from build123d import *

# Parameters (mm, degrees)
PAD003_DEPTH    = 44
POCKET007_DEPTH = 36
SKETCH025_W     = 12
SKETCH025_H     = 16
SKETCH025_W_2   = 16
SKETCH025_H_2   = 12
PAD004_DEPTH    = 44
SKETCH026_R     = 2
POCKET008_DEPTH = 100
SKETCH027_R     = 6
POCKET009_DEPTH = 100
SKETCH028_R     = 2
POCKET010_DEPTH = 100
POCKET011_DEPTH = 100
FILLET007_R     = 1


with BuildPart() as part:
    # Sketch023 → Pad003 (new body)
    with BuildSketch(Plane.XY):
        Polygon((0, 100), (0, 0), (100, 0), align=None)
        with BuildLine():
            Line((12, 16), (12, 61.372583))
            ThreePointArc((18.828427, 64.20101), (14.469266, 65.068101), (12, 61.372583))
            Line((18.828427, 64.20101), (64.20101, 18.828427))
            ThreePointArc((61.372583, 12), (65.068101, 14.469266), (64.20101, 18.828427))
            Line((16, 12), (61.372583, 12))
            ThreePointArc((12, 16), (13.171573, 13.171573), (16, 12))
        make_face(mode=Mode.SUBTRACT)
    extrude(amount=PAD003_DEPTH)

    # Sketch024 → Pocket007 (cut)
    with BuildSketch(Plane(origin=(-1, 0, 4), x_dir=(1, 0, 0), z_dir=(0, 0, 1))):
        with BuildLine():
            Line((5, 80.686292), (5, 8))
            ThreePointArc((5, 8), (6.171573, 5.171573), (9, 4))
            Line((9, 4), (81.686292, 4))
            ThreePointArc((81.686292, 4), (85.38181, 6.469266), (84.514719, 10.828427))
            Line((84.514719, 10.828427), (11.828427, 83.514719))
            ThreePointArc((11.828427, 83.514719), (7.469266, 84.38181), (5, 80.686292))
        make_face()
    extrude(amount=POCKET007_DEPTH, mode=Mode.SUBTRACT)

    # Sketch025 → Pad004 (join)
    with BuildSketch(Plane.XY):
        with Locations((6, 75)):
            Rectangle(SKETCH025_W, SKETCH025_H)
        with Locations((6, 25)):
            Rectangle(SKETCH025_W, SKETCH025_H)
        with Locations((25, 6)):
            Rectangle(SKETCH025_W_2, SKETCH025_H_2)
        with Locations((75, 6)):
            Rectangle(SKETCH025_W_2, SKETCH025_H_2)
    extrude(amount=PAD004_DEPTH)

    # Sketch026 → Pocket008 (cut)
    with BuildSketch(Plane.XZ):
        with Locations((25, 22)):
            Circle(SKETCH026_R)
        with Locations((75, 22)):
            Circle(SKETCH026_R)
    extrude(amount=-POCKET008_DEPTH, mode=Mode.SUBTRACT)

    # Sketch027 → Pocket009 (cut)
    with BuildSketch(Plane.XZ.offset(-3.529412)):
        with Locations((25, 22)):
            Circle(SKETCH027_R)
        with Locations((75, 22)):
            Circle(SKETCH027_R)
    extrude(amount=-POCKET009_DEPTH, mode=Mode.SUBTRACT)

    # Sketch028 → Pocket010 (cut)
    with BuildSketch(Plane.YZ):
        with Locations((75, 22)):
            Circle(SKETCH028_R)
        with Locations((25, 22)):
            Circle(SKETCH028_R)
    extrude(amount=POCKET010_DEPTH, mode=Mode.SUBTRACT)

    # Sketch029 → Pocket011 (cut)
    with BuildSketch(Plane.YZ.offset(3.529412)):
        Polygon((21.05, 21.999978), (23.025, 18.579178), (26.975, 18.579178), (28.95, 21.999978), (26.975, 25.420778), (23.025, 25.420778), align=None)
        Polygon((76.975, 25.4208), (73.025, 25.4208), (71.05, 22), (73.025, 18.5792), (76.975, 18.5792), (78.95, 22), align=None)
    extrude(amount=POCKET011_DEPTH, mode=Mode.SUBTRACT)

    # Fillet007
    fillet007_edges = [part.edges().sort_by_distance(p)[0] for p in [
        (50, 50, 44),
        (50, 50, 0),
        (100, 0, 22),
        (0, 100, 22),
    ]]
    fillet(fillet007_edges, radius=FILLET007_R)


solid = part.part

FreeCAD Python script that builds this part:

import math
import FreeCAD as App
import Part
import Sketcher

V = App.Vector
Q = App.Units.Quantity


def edges_at(feature, points):
    """Names of the edges that pass closest to the given points."""
    edges = feature.Shape.Edges
    near = lambda p: min(range(len(edges)), key=lambda i: edges[i].distToShape(Part.Vertex(*p))[0])
    return sorted({f"Edge{near(p) + 1}" for p in points})


def add_polygon(sketch, points):
    """Adds a closed chain of lines whose ends are joined by coincident constraints."""
    first, n = sketch.GeometryCount, len(points)
    for a, b in zip(points, points[1:] + points[:1]):
        sketch.addGeometry(Part.LineSegment(App.Vector(*a, 0), App.Vector(*b, 0)), False)
    for i in range(n):
        sketch.addConstraint(Sketcher.Constraint("Coincident", first + i, 2, first + (i + 1) % n, 1))

doc = App.newDocument("Part")
body = doc.addObject("PartDesign::Body", "Body")

sketch1 = body.newObject("Sketcher::SketchObject", "Sketch")
sketch1.AttachmentSupport = (doc.getObject("XY_Plane"), [""])
sketch1.MapMode = "FlatFace"
add_polygon(sketch1, [(0, 100), (0, 0), (100, 0)])
sketch1.addGeometry(Part.ArcOfCircle(Part.Circle(V(16, 16, 0), V(0, 0, 1), 4), math.radians(-180), math.radians(-90)), False)
sketch1.addGeometry(Part.LineSegment(V(12, 16, 0), V(12, 61.4, 0)), False)
sketch1.addGeometry(Part.ArcOfCircle(Part.Circle(V(16, 61.4, 0), V(0, 0, 1), 4), math.radians(45), math.radians(180)), False)
sketch1.addGeometry(Part.LineSegment(V(18.8, 64.2, 0), V(64.2, 18.8, 0)), False)
sketch1.addGeometry(Part.ArcOfCircle(Part.Circle(V(61.4, 16, 0), V(0, 0, 1), 4), math.radians(-90), math.radians(45)), False)
sketch1.addGeometry(Part.LineSegment(V(61.4, 12, 0), V(16, 12, 0)), False)
sketch1.addConstraint([
    Sketcher.Constraint("Tangent", 3, 1, 4, 1),
    Sketcher.Constraint("Tangent", 4, 2, 5, 2),
    Sketcher.Constraint("Tangent", 5, 1, 6, 1),
    Sketcher.Constraint("Tangent", 6, 2, 7, 2),
    Sketcher.Constraint("Tangent", 7, 1, 8, 1),
    Sketcher.Constraint("Tangent", 8, 2, 3, 2),
    Sketcher.Constraint("Vertical", 0),
    Sketcher.Constraint("Horizontal", 1),
    Sketcher.Constraint("Vertical", 4),
    Sketcher.Constraint("Horizontal", 8),
    Sketcher.Constraint("Coincident", 0, 2, -1, 1),
    Sketcher.Constraint("Equal", 3, 5),
    Sketcher.Constraint("Equal", 5, 7),
    Sketcher.Constraint("Parallel", 2, 6),
    Sketcher.Constraint("Equal", 1, 0),
    Sketcher.Constraint("Radius", 3, Q("4 mm")),
    Sketcher.Constraint("DistanceX", 1, 1, 1, 2, Q("100 mm")),
    Sketcher.Constraint("DistanceX", -1, 1, 3, 3, Q("16 mm")),
    Sketcher.Constraint("DistanceY", -1, 1, 3, 3, Q("16 mm")),
    Sketcher.Constraint("DistanceX", 8, 2, 8, 1, Q("45.372583 mm")),
])
pad1 = body.newObject("PartDesign::Pad", "Pad")
pad1.Profile = sketch1
pad1.Length = 44

sketch2 = body.newObject("Sketcher::SketchObject", "Sketch001")
sketch2.AttachmentSupport = (doc.getObject("XY_Plane"), [""])
sketch2.MapMode = "FlatFace"
sketch2.AttachmentOffset = App.Placement(V(0, 0, 4), App.Rotation())
sketch2.addGeometry([
    Part.LineSegment(V(4, 80.7, 0), V(4, 8, 0)),
    Part.ArcOfCircle(Part.Circle(V(8, 8, 0), V(0, 0, 1), 4), math.radians(-180), math.radians(-90)),
    Part.LineSegment(V(8, 4, 0), V(80.7, 4, 0)),
    Part.ArcOfCircle(Part.Circle(V(80.7, 8, 0), V(0, 0, 1), 4), math.radians(-90), math.radians(45)),
    Part.LineSegment(V(83.5, 10.8, 0), V(10.8, 83.5, 0)),
    Part.ArcOfCircle(Part.Circle(V(8, 80.7, 0), V(0, 0, 1), 4), math.radians(45), math.radians(180)),
], False)
sketch2.addConstraint([
    Sketcher.Constraint("Tangent", 0, 2, 1, 1),
    Sketcher.Constraint("Tangent", 1, 2, 2, 1),
    Sketcher.Constraint("Tangent", 2, 2, 3, 1),
    Sketcher.Constraint("Tangent", 3, 2, 4, 1),
    Sketcher.Constraint("Tangent", 4, 2, 5, 1),
    Sketcher.Constraint("Tangent", 5, 2, 0, 1),
    Sketcher.Constraint("Vertical", 0),
    Sketcher.Constraint("Horizontal", 2),
    Sketcher.Constraint("Equal", 1, 3),
    Sketcher.Constraint("Equal", 3, 5),
    Sketcher.Constraint("Equal", 2, 0),
    Sketcher.Constraint("Radius", 1, Q("4 mm")),
    Sketcher.Constraint("DistanceX", -1, 1, 1, 3, Q("8 mm")),
    Sketcher.Constraint("DistanceY", -1, 1, 1, 3, Q("8 mm")),
    Sketcher.Constraint("DistanceX", 2, 1, 2, 2, Q("72.686292 mm")),
])
pocket1 = body.newObject("PartDesign::Pocket", "Pocket")
pocket1.Profile = sketch2
pocket1.Length = 36
pocket1.Reversed = True

sketch3 = body.newObject("Sketcher::SketchObject", "Sketch002")
sketch3.AttachmentSupport = (doc.getObject("XY_Plane"), [""])
sketch3.MapMode = "FlatFace"
add_polygon(sketch3, [(0, 83), (0, 67), (12, 67), (12, 83)])
add_polygon(sketch3, [(0, 33), (0, 17), (12, 17), (12, 33)])
add_polygon(sketch3, [(17, 12), (17, 0), (33, 0), (33, 12)])
add_polygon(sketch3, [(67, 12), (67, 0), (83, 0), (83, 12)])
sketch3.addConstraint([
    Sketcher.Constraint("Vertical", 0),
    Sketcher.Constraint("Horizontal", 1),
    Sketcher.Constraint("Vertical", 2),
    Sketcher.Constraint("Horizontal", 3),
    Sketcher.Constraint("Vertical", 4),
    Sketcher.Constraint("Horizontal", 5),
    Sketcher.Constraint("Vertical", 6),
    Sketcher.Constraint("Horizontal", 7),
    Sketcher.Constraint("Vertical", 8),
    Sketcher.Constraint("Horizontal", 9),
    Sketcher.Constraint("Vertical", 10),
    Sketcher.Constraint("Horizontal", 11),
    Sketcher.Constraint("Vertical", 12),
    Sketcher.Constraint("Horizontal", 13),
    Sketcher.Constraint("Vertical", 14),
    Sketcher.Constraint("Horizontal", 15),
    Sketcher.Constraint("PointOnObject", 0, 2, -2),
    Sketcher.Constraint("PointOnObject", 4, 2, -2),
    Sketcher.Constraint("PointOnObject", 8, 2, -1),
    Sketcher.Constraint("PointOnObject", 12, 2, -1),
    Sketcher.Constraint("Horizontal", 11, 2, 14, 2),
    Sketcher.Constraint("Vertical", 2, 2, 5, 2),
    Sketcher.Constraint("Equal", 11, 13),
    Sketcher.Constraint("Equal", 15, 0),
    Sketcher.Constraint("Equal", 2, 4),
    Sketcher.Constraint("Equal", 7, 8),
    Sketcher.Constraint("DistanceX", 1, 1, 1, 2, Q("12 mm")),
    Sketcher.Constraint("DistanceX", 9, 1, 9, 2, Q("16 mm")),
    Sketcher.Constraint("DistanceY", -1, 1, 0, 2, Q("67 mm")),
    Sketcher.Constraint("DistanceY", -1, 1, 4, 2, Q("17 mm")),
    Sketcher.Constraint("DistanceX", -1, 1, 8, 2, Q("17 mm")),
    Sketcher.Constraint("DistanceX", -1, 1, 12, 2, Q("67 mm")),
])
pad2 = body.newObject("PartDesign::Pad", "Pad001")
pad2.Profile = sketch3
pad2.Length = 44

sketch4 = body.newObject("Sketcher::SketchObject", "Sketch003")
sketch4.AttachmentSupport = (doc.getObject("XZ_Plane"), [""])
sketch4.MapMode = "FlatFace"
sketch4.addGeometry([
    Part.Circle(V(25, 22, 0), V(0, 0, 1), 2),
    Part.Circle(V(75, 22, 0), V(0, 0, 1), 2),
], False)
sketch4.addConstraint([
    Sketcher.Constraint("Equal", 0, 1),
    Sketcher.Constraint("Horizontal", 0, 3, 1, 3),
    Sketcher.Constraint("Diameter", 0, Q("4 mm")),
    Sketcher.Constraint("DistanceX", -1, 1, 0, 3, Q("25 mm")),
    Sketcher.Constraint("DistanceY", -1, 1, 0, 3, Q("22 mm")),
    Sketcher.Constraint("DistanceX", -1, 1, 1, 3, Q("75 mm")),
])
pocket2 = body.newObject("PartDesign::Pocket", "Pocket001")
pocket2.Profile = sketch4
pocket2.Length = 100

sketch5 = body.newObject("Sketcher::SketchObject", "Sketch004")
sketch5.AttachmentSupport = (doc.getObject("XZ_Plane"), [""])
sketch5.MapMode = "FlatFace"
sketch5.AttachmentOffset = App.Placement(V(0, 0, -3.529412), App.Rotation())
sketch5.addGeometry([
    Part.Circle(V(25, 22, 0), V(0, 0, 1), 6),
    Part.Circle(V(75, 22, 0), V(0, 0, 1), 6),
], False)
sketch5.addConstraint([
    Sketcher.Constraint("Equal", 0, 1),
    Sketcher.Constraint("Horizontal", 0, 3, 1, 3),
    Sketcher.Constraint("Diameter", 0, Q("12 mm")),
    Sketcher.Constraint("DistanceX", -1, 1, 0, 3, Q("25 mm")),
    Sketcher.Constraint("DistanceY", -1, 1, 0, 3, Q("22 mm")),
    Sketcher.Constraint("DistanceX", -1, 1, 1, 3, Q("75 mm")),
])
pocket3 = body.newObject("PartDesign::Pocket", "Pocket002")
pocket3.Profile = sketch5
pocket3.Length = 100

sketch6 = body.newObject("Sketcher::SketchObject", "Sketch005")
sketch6.AttachmentSupport = (doc.getObject("YZ_Plane"), [""])
sketch6.MapMode = "FlatFace"
sketch6.addGeometry([
    Part.Circle(V(75, 22, 0), V(0, 0, 1), 2),
    Part.Circle(V(25, 22, 0), V(0, 0, 1), 2),
], False)
sketch6.addConstraint([
    Sketcher.Constraint("Equal", 0, 1),
    Sketcher.Constraint("Horizontal", 0, 3, 1, 3),
    Sketcher.Constraint("Diameter", 0, Q("4 mm")),
    Sketcher.Constraint("DistanceX", -1, 1, 0, 3, Q("75 mm")),
    Sketcher.Constraint("DistanceY", -1, 1, 0, 3, Q("22 mm")),
    Sketcher.Constraint("DistanceX", -1, 1, 1, 3, Q("25 mm")),
])
pocket4 = body.newObject("PartDesign::Pocket", "Pocket003")
pocket4.Profile = sketch6
pocket4.Length = 100
pocket4.Reversed = True

sketch7 = body.newObject("Sketcher::SketchObject", "Sketch006")
sketch7.AttachmentSupport = (doc.getObject("YZ_Plane"), [""])
sketch7.MapMode = "FlatFace"
sketch7.AttachmentOffset = App.Placement(V(0, 0, 3.529412), App.Rotation())
add_polygon(sketch7, [(21.1, 22), (23, 18.6), (27, 18.6), (28.9, 22), (27, 25.4), (23, 25.4)])
add_polygon(sketch7, [(77, 25.4), (73, 25.4), (71, 22), (73, 18.6), (77, 18.6), (79, 22)])
sketch7.addConstraint([
    Sketcher.Constraint("Horizontal", 1),
    Sketcher.Constraint("Horizontal", 4),
    Sketcher.Constraint("Horizontal", 6),
    Sketcher.Constraint("Horizontal", 9),
    Sketcher.Constraint("Parallel", 0, 3),
    Sketcher.Constraint("Parallel", 2, 5),
    Sketcher.Constraint("Parallel", 5, 7),
    Sketcher.Constraint("Parallel", 3, 8),
    Sketcher.Constraint("Parallel", 7, 10),
    Sketcher.Constraint("Parallel", 8, 11),
    Sketcher.Constraint("Horizontal", 2, 2, 5, 2),
    Sketcher.Constraint("Horizontal", 7, 2, 10, 2),
    Sketcher.Constraint("Vertical", 1, 2, 3, 2),
    Sketcher.Constraint("Vertical", 0, 2, 4, 2),
    Sketcher.Constraint("Vertical", 6, 2, 8, 2),
    Sketcher.Constraint("Equal", 4, 6),
    Sketcher.Constraint("Equal", 5, 7),
    Sketcher.Constraint("Angle", 0, Q("-59.999997 deg")),
    Sketcher.Constraint("DistanceY", -1, 1, 7, 2, Q("22 mm")),
    Sketcher.Constraint("DistanceX", 4, 2, 6, 2, Q("50 mm")),
    Sketcher.Constraint("DistanceX", 1, 1, 1, 2, Q("3.95 mm")),
    Sketcher.Constraint("DistanceX", 5, 2, 2, 2, Q("7.9 mm")),
    Sketcher.Constraint("DistanceX", -1, 1, 2, 2, Q("28.95 mm")),
    Sketcher.Constraint("DistanceY", -1, 1, 0, 2, Q("18.579178 mm")),
])
pocket5 = body.newObject("PartDesign::Pocket", "Pocket004")
pocket5.Profile = sketch7
pocket5.Length = 100
pocket5.Reversed = True
doc.recompute()

fillet = body.newObject("PartDesign::Fillet", "Fillet")
fillet.Base = (pocket5, edges_at(pocket5, [
    (50, 50, 44),
    (50, 50, 0),
    (100, 0, 22),
    (0, 100, 22),
]))
fillet.Radius = 1

doc.recompute()
